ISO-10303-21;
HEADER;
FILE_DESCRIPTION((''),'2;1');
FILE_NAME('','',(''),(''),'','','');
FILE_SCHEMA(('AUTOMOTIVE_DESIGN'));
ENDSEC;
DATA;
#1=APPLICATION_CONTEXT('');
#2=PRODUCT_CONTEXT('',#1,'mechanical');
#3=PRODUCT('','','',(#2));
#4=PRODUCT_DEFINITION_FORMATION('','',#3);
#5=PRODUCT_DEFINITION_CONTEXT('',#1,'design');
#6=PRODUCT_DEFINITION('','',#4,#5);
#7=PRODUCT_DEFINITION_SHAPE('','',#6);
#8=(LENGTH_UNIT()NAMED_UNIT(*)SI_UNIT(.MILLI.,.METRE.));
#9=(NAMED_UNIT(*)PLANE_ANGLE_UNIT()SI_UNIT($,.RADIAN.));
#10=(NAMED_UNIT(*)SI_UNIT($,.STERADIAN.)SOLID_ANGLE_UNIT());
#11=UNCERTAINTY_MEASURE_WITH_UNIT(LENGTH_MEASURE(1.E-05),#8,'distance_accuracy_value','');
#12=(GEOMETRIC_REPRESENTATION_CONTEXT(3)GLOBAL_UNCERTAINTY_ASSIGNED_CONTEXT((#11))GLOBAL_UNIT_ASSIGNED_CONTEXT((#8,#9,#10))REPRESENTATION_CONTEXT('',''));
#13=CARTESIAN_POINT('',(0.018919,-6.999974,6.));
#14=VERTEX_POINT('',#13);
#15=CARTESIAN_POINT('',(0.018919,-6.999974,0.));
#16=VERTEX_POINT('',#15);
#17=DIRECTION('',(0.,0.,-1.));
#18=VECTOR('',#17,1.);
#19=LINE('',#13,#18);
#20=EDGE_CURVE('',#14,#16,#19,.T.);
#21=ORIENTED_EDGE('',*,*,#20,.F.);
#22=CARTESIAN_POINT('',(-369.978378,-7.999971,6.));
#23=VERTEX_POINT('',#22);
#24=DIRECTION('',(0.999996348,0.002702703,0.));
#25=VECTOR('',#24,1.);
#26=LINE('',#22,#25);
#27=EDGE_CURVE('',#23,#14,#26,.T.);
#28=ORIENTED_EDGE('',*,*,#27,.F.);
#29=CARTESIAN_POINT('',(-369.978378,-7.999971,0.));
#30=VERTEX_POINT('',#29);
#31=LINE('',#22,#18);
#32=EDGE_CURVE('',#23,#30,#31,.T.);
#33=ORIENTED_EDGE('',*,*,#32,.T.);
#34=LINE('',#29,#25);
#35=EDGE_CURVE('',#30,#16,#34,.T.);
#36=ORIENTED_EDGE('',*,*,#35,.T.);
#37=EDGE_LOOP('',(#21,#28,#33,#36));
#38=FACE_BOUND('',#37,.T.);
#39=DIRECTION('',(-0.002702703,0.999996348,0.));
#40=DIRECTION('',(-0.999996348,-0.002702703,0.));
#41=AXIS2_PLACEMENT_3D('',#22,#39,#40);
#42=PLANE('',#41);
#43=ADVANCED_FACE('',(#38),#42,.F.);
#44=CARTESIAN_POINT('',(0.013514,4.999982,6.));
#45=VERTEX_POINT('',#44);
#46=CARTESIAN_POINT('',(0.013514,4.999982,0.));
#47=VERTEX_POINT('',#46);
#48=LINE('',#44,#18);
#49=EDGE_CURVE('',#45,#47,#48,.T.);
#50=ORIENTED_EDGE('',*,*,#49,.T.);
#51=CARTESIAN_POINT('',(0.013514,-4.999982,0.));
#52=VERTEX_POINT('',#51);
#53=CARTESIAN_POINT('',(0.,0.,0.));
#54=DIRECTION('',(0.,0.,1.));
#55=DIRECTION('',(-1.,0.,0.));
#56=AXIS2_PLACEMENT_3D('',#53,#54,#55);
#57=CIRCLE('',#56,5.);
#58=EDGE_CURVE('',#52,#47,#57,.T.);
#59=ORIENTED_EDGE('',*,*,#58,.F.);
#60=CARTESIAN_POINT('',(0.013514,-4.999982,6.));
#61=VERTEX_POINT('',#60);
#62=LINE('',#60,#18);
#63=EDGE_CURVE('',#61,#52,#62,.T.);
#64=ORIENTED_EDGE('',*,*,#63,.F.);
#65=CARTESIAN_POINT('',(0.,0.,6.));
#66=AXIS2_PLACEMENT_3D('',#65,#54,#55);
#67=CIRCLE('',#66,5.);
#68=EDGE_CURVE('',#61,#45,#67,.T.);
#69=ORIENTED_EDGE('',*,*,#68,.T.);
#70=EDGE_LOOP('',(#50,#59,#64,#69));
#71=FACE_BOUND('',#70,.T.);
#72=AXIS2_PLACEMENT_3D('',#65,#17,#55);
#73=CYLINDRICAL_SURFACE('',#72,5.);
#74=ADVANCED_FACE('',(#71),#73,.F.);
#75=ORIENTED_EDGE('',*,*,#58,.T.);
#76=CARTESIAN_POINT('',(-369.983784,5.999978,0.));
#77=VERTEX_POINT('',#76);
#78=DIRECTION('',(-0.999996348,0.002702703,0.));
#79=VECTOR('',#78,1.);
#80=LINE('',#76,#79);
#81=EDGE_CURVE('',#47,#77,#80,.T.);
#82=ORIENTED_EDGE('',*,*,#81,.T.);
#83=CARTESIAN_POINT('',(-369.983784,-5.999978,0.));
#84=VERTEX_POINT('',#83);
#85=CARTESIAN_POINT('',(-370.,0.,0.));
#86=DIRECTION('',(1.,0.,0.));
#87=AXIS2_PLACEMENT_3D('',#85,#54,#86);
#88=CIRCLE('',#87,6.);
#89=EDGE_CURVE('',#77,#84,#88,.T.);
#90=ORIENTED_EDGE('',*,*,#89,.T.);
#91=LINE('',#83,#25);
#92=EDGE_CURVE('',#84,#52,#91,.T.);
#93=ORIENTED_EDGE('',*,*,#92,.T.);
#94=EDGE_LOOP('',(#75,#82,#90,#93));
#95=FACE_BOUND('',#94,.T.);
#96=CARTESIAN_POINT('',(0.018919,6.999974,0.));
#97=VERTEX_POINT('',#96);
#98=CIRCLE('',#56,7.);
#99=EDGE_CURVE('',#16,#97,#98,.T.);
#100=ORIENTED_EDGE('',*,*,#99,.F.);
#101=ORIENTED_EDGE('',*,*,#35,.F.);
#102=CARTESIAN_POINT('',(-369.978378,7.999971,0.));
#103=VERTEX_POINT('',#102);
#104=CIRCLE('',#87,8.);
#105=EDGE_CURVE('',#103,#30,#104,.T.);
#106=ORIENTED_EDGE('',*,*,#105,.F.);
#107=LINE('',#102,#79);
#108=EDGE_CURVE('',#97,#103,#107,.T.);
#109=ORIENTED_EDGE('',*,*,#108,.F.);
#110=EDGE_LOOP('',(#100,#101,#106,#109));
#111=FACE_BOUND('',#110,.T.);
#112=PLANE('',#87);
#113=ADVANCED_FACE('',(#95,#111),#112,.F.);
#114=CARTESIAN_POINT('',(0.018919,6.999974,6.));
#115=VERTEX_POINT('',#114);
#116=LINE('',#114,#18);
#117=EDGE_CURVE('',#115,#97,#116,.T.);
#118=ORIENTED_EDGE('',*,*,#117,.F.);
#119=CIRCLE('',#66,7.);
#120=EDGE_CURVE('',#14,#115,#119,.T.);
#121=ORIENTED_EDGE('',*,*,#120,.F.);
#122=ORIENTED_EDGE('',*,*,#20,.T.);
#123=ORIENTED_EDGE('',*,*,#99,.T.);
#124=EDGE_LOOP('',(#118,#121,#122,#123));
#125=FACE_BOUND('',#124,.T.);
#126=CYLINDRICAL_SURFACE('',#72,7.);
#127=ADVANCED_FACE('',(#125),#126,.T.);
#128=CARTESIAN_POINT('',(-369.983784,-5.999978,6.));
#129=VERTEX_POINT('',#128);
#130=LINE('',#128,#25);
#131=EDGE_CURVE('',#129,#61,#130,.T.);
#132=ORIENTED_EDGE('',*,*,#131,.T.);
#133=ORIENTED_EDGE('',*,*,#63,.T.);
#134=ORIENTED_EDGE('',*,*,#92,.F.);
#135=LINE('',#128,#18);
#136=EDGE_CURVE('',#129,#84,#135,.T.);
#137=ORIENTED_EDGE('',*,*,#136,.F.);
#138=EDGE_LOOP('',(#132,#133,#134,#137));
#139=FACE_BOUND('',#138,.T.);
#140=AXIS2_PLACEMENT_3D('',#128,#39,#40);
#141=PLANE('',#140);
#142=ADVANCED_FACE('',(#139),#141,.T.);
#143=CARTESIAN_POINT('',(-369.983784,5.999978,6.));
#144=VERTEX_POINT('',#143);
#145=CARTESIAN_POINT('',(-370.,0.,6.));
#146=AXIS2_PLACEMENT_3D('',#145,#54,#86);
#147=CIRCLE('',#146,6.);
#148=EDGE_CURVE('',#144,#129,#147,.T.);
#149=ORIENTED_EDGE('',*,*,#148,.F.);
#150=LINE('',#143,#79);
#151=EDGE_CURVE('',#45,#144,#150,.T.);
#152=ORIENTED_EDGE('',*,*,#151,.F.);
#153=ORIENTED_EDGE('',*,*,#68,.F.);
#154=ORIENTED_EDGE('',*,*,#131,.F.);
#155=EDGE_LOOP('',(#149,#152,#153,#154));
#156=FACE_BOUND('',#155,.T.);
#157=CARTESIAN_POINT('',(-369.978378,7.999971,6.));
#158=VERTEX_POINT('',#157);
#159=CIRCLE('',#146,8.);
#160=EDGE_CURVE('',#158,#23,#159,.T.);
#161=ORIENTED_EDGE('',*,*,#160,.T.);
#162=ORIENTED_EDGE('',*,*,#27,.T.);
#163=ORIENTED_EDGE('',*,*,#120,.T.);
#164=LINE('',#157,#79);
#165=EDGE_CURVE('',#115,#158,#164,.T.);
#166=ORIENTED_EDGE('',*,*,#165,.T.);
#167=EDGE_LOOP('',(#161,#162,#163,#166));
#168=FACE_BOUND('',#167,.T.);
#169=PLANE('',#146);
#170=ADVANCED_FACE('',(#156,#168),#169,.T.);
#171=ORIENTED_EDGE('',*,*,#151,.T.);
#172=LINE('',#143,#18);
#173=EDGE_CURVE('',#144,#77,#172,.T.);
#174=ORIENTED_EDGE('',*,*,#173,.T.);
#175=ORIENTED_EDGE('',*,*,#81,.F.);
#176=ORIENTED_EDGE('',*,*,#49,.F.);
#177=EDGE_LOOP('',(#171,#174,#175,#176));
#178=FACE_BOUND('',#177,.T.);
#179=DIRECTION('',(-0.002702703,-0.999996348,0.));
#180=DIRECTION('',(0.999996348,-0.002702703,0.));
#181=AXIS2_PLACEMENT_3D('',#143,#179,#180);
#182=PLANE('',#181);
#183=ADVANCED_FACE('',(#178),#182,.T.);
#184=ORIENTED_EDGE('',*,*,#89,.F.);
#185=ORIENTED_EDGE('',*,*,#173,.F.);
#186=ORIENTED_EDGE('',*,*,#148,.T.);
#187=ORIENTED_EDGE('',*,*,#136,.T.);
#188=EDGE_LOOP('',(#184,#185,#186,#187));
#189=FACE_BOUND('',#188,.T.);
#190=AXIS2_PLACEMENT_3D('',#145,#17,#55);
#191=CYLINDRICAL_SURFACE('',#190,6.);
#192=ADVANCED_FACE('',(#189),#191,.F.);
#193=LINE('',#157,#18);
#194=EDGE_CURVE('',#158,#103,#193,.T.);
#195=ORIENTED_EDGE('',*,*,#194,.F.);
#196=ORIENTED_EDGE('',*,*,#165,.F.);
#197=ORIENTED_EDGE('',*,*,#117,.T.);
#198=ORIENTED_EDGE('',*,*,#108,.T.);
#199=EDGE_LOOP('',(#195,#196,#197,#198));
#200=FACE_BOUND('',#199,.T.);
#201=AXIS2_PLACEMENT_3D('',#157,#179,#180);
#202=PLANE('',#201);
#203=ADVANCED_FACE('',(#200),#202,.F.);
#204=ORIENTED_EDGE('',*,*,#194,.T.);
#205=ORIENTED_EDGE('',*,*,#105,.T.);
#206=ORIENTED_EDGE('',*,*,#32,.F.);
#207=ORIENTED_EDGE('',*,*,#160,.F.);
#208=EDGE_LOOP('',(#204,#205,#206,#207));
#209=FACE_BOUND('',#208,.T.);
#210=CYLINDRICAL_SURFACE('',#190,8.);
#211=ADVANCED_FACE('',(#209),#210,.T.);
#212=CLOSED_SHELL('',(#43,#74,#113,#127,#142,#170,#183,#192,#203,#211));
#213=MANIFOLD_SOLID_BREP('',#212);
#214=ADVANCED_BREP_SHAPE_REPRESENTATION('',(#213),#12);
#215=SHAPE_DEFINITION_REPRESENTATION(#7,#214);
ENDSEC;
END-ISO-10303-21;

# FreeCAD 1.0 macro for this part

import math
import FreeCAD as App
import Part
import Sketcher

V = App.Vector

doc = App.newDocument("Part")
params = doc.addObject("Spreadsheet::Sheet", "Params")
for row, (alias, value) in enumerate([
    ("sketch1_radius", "8 mm"),
    ("sketch1_radius2", "7 mm"),
    ("sketch1_radius3", "5 mm"),
    ("pad1_length", "6 mm"),
], start=1):
    params.set(f"A{row}", alias)
    params.set(f"B{row}", "=" + value)
    params.setAlias(f"B{row}", alias)

body = doc.addObject("PartDesign::Body", "Body")

sketch1 = doc.addObject("Sketcher::SketchObject", "Sketch")
body.addObject(sketch1)
sketch1.AttachmentSupport = (doc.XY_Plane, [""])
sketch1.MapMode = "FlatFace"
sketch1.addGeometry([
    Part.LineSegment(V(0, 7, 0), V(-370, 8, 0)),
    Part.ArcOfCircle(Part.Circle(V(-370, 0, 0), V(0, 0, 1), 8), math.radians(90), math.radians(270)),
    Part.LineSegment(V(-370, -8, 0), V(0, -7, 0)),
    Part.ArcOfCircle(Part.Circle(V(0, 0, 0), V(0, 0, 1), 7), math.radians(-90), math.radians(90)),
    Part.LineSegment(V(-370, 6, 0), V(0, 5, 0)),
    Part.ArcOfCircle(Part.Circle(V(0, 0, 0), V(0, 0, 1), 5), math.radians(-90), math.radians(90)),
    Part.LineSegment(V(0, -5, 0), V(-370, -6, 0)),
    Part.ArcOfCircle(Part.Circle(V(-370, 0, 0), V(0, 0, 1), 6), math.radians(90), math.radians(270)),
], False)
sketch1.addConstraint([
    Sketcher.Constraint("Tangent", 0, 2, 1, 1),
    Sketcher.Constraint("Tangent", 1, 2, 2, 1),
    Sketcher.Constraint("Tangent", 2, 2, 3, 1),
    Sketcher.Constraint("Tangent", 3, 2, 0, 1),
    Sketcher.Constraint("Tangent", 4, 2, 5, 2),
    Sketcher.Constraint("Tangent", 5, 1, 6, 1),
    Sketcher.Constraint("Tangent", 6, 2, 7, 2),
    Sketcher.Constraint("Tangent", 7, 1, 4, 1),
    Sketcher.Constraint("Coincident", 3, 3, -1, 1),
    Sketcher.Constraint("Coincident", 5, 3, -1, 1),
    Sketcher.Constraint("Coincident", 7, 3, 1, 3),
    Sketcher.Constraint("PointOnObject", 1, 3, -1),
    Sketcher.Constraint("Parallel", 0, 4),
    Sketcher.Constraint("Radius", 1, 8.0),
    Sketcher.Constraint("Radius", 3, 7.0),
    Sketcher.Constraint("Radius", 5, 5.0),
    Sketcher.Constraint("DistanceX", 1, 3, -1, 1, 370.0),
])
sketch1.setExpression("Constraints[13]", "Params.sketch1_radius")
sketch1.setExpression("Constraints[14]", "Params.sketch1_radius2")
sketch1.setExpression("Constraints[15]", "Params.sketch1_radius3")
pad1 = doc.addObject("PartDesign::Pad", "Pad")
body.addObject(pad1)
pad1.Profile = sketch1
pad1.setExpression("Length", "Params.pad1_length")

doc.recompute()
